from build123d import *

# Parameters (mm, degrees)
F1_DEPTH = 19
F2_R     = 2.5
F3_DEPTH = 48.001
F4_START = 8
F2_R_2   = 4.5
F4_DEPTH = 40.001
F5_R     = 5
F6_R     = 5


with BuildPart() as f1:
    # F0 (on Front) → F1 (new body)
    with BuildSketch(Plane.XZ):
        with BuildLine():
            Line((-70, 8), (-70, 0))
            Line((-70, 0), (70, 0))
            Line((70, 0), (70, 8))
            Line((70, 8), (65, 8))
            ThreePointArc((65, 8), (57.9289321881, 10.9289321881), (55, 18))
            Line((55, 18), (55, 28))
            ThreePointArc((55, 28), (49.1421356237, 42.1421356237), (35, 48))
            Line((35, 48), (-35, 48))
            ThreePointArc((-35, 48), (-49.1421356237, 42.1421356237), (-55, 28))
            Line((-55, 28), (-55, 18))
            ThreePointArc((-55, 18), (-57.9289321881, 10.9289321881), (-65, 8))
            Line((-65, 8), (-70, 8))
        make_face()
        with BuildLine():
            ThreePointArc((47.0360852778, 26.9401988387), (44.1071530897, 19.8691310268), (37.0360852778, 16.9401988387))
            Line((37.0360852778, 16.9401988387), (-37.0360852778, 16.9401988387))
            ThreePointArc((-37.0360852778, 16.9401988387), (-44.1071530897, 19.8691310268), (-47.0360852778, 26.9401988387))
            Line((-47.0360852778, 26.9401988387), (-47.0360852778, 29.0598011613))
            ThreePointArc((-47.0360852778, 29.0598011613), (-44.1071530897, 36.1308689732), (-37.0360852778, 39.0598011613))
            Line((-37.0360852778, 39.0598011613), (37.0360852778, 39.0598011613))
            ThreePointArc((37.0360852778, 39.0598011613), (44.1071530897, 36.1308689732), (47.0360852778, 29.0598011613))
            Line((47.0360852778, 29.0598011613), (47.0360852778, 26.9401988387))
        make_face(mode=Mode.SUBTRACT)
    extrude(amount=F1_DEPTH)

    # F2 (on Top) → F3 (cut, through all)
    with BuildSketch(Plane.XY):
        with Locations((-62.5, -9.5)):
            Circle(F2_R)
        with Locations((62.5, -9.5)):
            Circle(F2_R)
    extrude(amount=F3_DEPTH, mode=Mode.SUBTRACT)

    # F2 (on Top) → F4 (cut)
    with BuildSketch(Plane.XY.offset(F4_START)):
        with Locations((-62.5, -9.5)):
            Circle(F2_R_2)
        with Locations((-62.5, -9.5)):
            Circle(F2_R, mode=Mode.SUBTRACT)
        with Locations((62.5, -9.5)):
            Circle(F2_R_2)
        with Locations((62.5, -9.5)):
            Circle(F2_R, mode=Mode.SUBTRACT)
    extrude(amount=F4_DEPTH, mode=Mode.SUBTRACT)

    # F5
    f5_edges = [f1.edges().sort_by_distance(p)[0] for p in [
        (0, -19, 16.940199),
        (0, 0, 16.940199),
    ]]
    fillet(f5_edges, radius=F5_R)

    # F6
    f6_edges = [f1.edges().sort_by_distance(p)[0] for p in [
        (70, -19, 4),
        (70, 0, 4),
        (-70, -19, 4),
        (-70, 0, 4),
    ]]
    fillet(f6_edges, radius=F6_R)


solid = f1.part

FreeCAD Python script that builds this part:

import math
import FreeCAD as App
import Part
import Sketcher
from FreeCAD import Vector


def edges_at(feature, points):
    """Names of the edges that pass closest to the given points."""
    edges = feature.Shape.Edges
    near = lambda p: min(range(len(edges)), key=lambda i: edges[i].distToShape(Part.Vertex(*p))[0])
    return sorted({f"Edge{near(p) + 1}" for p in points})

doc = App.newDocument("Part")
params = doc.addObject("Spreadsheet::Sheet", "Params")
for row, (alias, value) in enumerate([
    ("sketch1_radius", "10 mm"),
    ("sketch1_radius2", "20 mm"),
    ("sketch1_width", "140 mm"),
    ("sketch1_width2", "5 mm"),
    ("sketch1_height", "8 mm"),
    ("pad1_length", "19 mm"),
    ("sketch2_diameter", "5 mm"),
    ("sketch3_diameter", "9 mm"),
    ("sketch3_diameter2", "5 mm"),
    ("pocket2_length", "40.001 mm"),
    ("fillet_radius", "5 mm"),
    ("fillet2_radius", "5 mm"),
], start=1):
    params.set(f"A{row}", alias)
    params.set(f"B{row}", "=" + value)
    params.setAlias(f"B{row}", alias)

body = doc.addObject("PartDesign::Body", "Body")

# Sketch on XZ plane
sketch1 = body.newObject("Sketcher::SketchObject", "Sketch")
sketch1.AttachmentSupport = (doc.getObject("XZ_Plane"), [""])
sketch1.MapMode = "FlatFace"
sketch1.addGeometry(Part.LineSegment(Vector(-70, 8, 0), Vector(-70, 0, 0)), False)
sketch1.addGeometry(Part.LineSegment(Vector(-70, 0, 0), Vector(70, 0, 0)), False)
sketch1.addGeometry(Part.LineSegment(Vector(70, 0, 0), Vector(70, 8, 0)), False)
sketch1.addGeometry(Part.LineSegment(Vector(70, 8, 0), Vector(65, 8, 0)), False)
sketch1.addGeometry(Part.ArcOfCircle(Part.Circle(Vector(65, 18, 0), Vector(0, 0, 1), 10), math.radians(180), math.radians(270)), False)
sketch1.addGeometry(Part.LineSegment(Vector(55, 18, 0), Vector(55, 28, 0)), False)
sketch1.addGeometry(Part.ArcOfCircle(Part.Circle(Vector(35, 28, 0), Vector(0, 0, 1), 20), math.radians(0), math.radians(90)), False)
sketch1.addGeometry(Part.LineSegment(Vector(35, 48, 0), Vector(-35, 48, 0)), False)
sketch1.addGeometry(Part.ArcOfCircle(Part.Circle(Vector(-35, 28, 0), Vector(0, 0, 1), 20), math.radians(90), math.radians(180)), False)
sketch1.addGeometry(Part.LineSegment(Vector(-55, 28, 0), Vector(-55, 18, 0)), False)
sketch1.addGeometry(Part.ArcOfCircle(Part.Circle(Vector(-65, 18, 0), Vector(0, 0, 1), 10), math.radians(-90), math.radians(0)), False)
sketch1.addGeometry(Part.LineSegment(Vector(-65, 8, 0), Vector(-70, 8, 0)), False)
sketch1.addGeometry(Part.LineSegment(Vector(47, 29.1, 0), Vector(47, 26.9, 0)), False)
sketch1.addGeometry(Part.ArcOfCircle(Part.Circle(Vector(37, 26.9, 0), Vector(0, 0, 1), 10), math.radians(-90), math.radians(0)), False)
sketch1.addGeometry(Part.LineSegment(Vector(37, 16.9, 0), Vector(-37, 16.9, 0)), False)
sketch1.addGeometry(Part.ArcOfCircle(Part.Circle(Vector(-37, 26.9, 0), Vector(0, 0, 1), 10), math.radians(180), math.radians(270)), False)
sketch1.addGeometry(Part.LineSegment(Vector(-47, 26.9, 0), Vector(-47, 29.1, 0)), False)
sketch1.addGeometry(Part.ArcOfCircle(Part.Circle(Vector(-37, 29.1, 0), Vector(0, 0, 1), 10), math.radians(90), math.radians(180)), False)
sketch1.addGeometry(Part.LineSegment(Vector(-37, 39.1, 0), Vector(37, 39.1, 0)), False)
sketch1.addGeometry(Part.ArcOfCircle(Part.Circle(Vector(37, 29.1, 0), Vector(0, 0, 1), 10), math.radians(0), math.radians(90)), False)
sketch1.addConstraint(Sketcher.Constraint("Coincident", 0, 2, 1, 1))
sketch1.addConstraint(Sketcher.Constraint("Coincident", 1, 2, 2, 1))
sketch1.addConstraint(Sketcher.Constraint("Coincident", 2, 2, 3, 1))
sketch1.addConstraint(Sketcher.Constraint("Tangent", 3, 2, 4, 2))
sketch1.addConstraint(Sketcher.Constraint("Tangent", 4, 1, 5, 1))
sketch1.addConstraint(Sketcher.Constraint("Tangent", 5, 2, 6, 1))
sketch1.addConstraint(Sketcher.Constraint("Tangent", 6, 2, 7, 1))
sketch1.addConstraint(Sketcher.Constraint("Tangent", 7, 2, 8, 1))
sketch1.addConstraint(Sketcher.Constraint("Tangent", 8, 2, 9, 1))
sketch1.addConstraint(Sketcher.Constraint("Tangent", 9, 2, 10, 2))
sketch1.addConstraint(Sketcher.Constraint("Tangent", 10, 1, 11, 1))
sketch1.addConstraint(Sketcher.Constraint("Coincident", 11, 2, 0, 1))
sketch1.addConstraint(Sketcher.Constraint("Tangent", 12, 2, 13, 2))
sketch1.addConstraint(Sketcher.Constraint("Tangent", 13, 1, 14, 1))
sketch1.addConstraint(Sketcher.Constraint("Tangent", 14, 2, 15, 2))
sketch1.addConstraint(Sketcher.Constraint("Tangent", 15, 1, 16, 1))
sketch1.addConstraint(Sketcher.Constraint("Tangent", 16, 2, 17, 2))
sketch1.addConstraint(Sketcher.Constraint("Tangent", 17, 1, 18, 1))
sketch1.addConstraint(Sketcher.Constraint("Tangent", 18, 2, 19, 2))
sketch1.addConstraint(Sketcher.Constraint("Tangent", 19, 1, 12, 1))
sketch1.addConstraint(Sketcher.Constraint("Vertical", 0))
sketch1.addConstraint(Sketcher.Constraint("Horizontal", 1))
sketch1.addConstraint(Sketcher.Constraint("Vertical", 2))
sketch1.addConstraint(Sketcher.Constraint("Horizontal", 3))
sketch1.addConstraint(Sketcher.Constraint("Vertical", 5))
sketch1.addConstraint(Sketcher.Constraint("Horizontal", 7))
sketch1.addConstraint(Sketcher.Constraint("Vertical", 9))
sketch1.addConstraint(Sketcher.Constraint("Horizontal", 11))
sketch1.addConstraint(Sketcher.Constraint("Vertical", 12))
sketch1.addConstraint(Sketcher.Constraint("Horizontal", 14))
sketch1.addConstraint(Sketcher.Constraint("Vertical", 16))
sketch1.addConstraint(Sketcher.Constraint("Horizontal", 18))
sketch1.addConstraint(Sketcher.Constraint("Equal", 6, 8))
sketch1.addConstraint(Sketcher.Constraint("Equal", 4, 10))
sketch1.addConstraint(Sketcher.Constraint("Equal", 10, 13))
sketch1.addConstraint(Sketcher.Constraint("Equal", 13, 15))
sketch1.addConstraint(Sketcher.Constraint("Equal", 15, 17))
sketch1.addConstraint(Sketcher.Constraint("Equal", 17, 19))
sketch1.addConstraint(Sketcher.Constraint("Symmetric", 0, 2, 1, 2, -1, 1))
sketch1.addConstraint(Sketcher.Constraint("Symmetric", 4, 3, 10, 3, -2))
sketch1.addConstraint(Sketcher.Constraint("Radius", 4, 10.0))
sketch1.addConstraint(Sketcher.Constraint("Radius", 6, 20.0))
sketch1.addConstraint(Sketcher.Constraint("DistanceX", 1, 1, 1, 2, 140.0))
sketch1.addConstraint(Sketcher.Constraint("DistanceX", 3, 2, 3, 1, 5.0))
sketch1.addConstraint(Sketcher.Constraint("DistanceY", 0, 2, 0, 1, 8.0))
sketch1.addConstraint(Sketcher.Constraint("DistanceY", 5, 1, 5, 2, 10.0))
sketch1.addConstraint(Sketcher.Constraint("DistanceX", 14, 2, 14, 1, 74.072171))
sketch1.addConstraint(Sketcher.Constraint("DistanceY", -1, 1, 13, 3, 26.940199))
sketch1.addConstraint(Sketcher.Constraint("DistanceY", -1, 1, 17, 3, 29.059801))
sketch1.addConstraint(Sketcher.Constraint("DistanceX", -1, 1, 13, 3, 37.036085))
sketch1.setExpression("Constraints[40]", "Params.sketch1_radius")
sketch1.setExpression("Constraints[41]", "Params.sketch1_radius2")
sketch1.setExpression("Constraints[42]", "Params.sketch1_width")
sketch1.setExpression("Constraints[43]", "Params.sketch1_width2")
sketch1.setExpression("Constraints[44]", "Params.sketch1_height")
pad1 = body.newObject("PartDesign::Pad", "Pad")
pad1.Profile = sketch1
pad1.setExpression("Length", "Params.pad1_length")

# Sketch on XY plane
sketch2 = body.newObject("Sketcher::SketchObject", "Sketch001")
sketch2.AttachmentSupport = (doc.getObject("XY_Plane"), [""])
sketch2.MapMode = "FlatFace"
sketch2.addGeometry(Part.Circle(Vector(-62.5, -9.5, 0), Vector(0, 0, 1), 2.5), False)
sketch2.addGeometry(Part.Circle(Vector(62.5, -9.5, 0), Vector(0, 0, 1), 2.5), False)
sketch2.addConstraint(Sketcher.Constraint("Equal", 0, 1))
sketch2.addConstraint(Sketcher.Constraint("Symmetric", 0, 3, 1, 3, -2))
sketch2.addConstraint(Sketcher.Constraint("Diameter", 0, 5.0))
sketch2.addConstraint(Sketcher.Constraint("DistanceX", 0, 3, 1, 3, 125.0))
sketch2.addConstraint(Sketcher.Constraint("DistanceY", 0, 3, -1, 1, 9.5))
sketch2.setExpression("Constraints[2]", "Params.sketch2_diameter")
pocket1 = body.newObject("PartDesign::Pocket", "Pocket")
pocket1.Profile = sketch2
pocket1.Type = "ThroughAll"
pocket1.Reversed = True

# Sketch on XY plane
sketch3 = body.newObject("Sketcher::SketchObject", "Sketch002")
sketch3.AttachmentSupport = (doc.getObject("XY_Plane"), [""])
sketch3.MapMode = "FlatFace"
sketch3.AttachmentOffset = App.Placement(Vector(0, 0, 8), App.Rotation())
sketch3.addGeometry(Part.Circle(Vector(-62.5, -9.5, 0), Vector(0, 0, 1), 4.5), False)
sketch3.addGeometry(Part.Circle(Vector(-62.5, -9.5, 0), Vector(0, 0, 1), 2.5), False)
sketch3.addGeometry(Part.Circle(Vector(62.5, -9.5, 0), Vector(0, 0, 1), 4.5), False)
sketch3.addGeometry(Part.Circle(Vector(62.5, -9.5, 0), Vector(0, 0, 1), 2.5), False)
sketch3.addConstraint(Sketcher.Constraint("Coincident", 1, 3, 0, 3))
sketch3.addConstraint(Sketcher.Constraint("Coincident", 3, 3, 2, 3))
sketch3.addConstraint(Sketcher.Constraint("Equal", 0, 2))
sketch3.addConstraint(Sketcher.Constraint("Equal", 1, 3))
sketch3.addConstraint(Sketcher.Constraint("Symmetric", 0, 3, 2, 3, -2))
sketch3.addConstraint(Sketcher.Constraint("Diameter", 0, 9.0))
sketch3.addConstraint(Sketcher.Constraint("Diameter", 1, 5.0))
sketch3.addConstraint(Sketcher.Constraint("DistanceX", 0, 3, 2, 3, 125.0))
sketch3.addConstraint(Sketcher.Constraint("DistanceY", 0, 3, -1, 1, 9.5))
sketch3.setExpression("Constraints[5]", "Params.sketch3_diameter")
sketch3.setExpression("Constraints[6]", "Params.sketch3_diameter2")
pocket2 = body.newObject("PartDesign::Pocket", "Pocket001")
pocket2.Profile = sketch3
pocket2.setExpression("Length", "Params.pocket2_length")
pocket2.Reversed = True
doc.recompute()

fillet = body.newObject("PartDesign::Fillet", "Fillet")
fillet.Base = (pocket2, edges_at(pocket2, [(0, -19, 16.94), (0, 0, 16.94)]))
fillet.setExpression("Radius", "Params.fillet_radius")
doc.recompute()

fillet2 = body.newObject("PartDesign::Fillet", "Fillet001")
fillet2.Base = (fillet, edges_at(fillet, [
    (70, -19, 4),
    (70, 0, 4),
    (-70, -19, 4),
    (-70, 0, 4),
]))
fillet2.setExpression("Radius", "Params.fillet2_radius")

doc.recompute()
